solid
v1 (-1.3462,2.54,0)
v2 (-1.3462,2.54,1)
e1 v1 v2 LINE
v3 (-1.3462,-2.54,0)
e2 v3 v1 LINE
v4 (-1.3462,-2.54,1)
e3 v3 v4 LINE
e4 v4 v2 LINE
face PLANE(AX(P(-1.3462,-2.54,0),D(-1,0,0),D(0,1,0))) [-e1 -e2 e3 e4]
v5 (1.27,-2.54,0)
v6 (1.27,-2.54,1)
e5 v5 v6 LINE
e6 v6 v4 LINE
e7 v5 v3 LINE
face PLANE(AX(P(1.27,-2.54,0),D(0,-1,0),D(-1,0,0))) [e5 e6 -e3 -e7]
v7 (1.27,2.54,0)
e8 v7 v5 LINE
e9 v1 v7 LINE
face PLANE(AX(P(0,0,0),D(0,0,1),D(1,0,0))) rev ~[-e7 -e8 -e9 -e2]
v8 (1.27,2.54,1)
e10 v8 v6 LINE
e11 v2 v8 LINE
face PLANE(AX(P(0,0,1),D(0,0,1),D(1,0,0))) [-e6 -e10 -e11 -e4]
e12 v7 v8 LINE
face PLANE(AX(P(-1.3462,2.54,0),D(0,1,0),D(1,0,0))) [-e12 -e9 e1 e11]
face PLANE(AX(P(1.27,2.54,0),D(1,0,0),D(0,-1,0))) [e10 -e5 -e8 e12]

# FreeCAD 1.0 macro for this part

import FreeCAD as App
import Part
import Sketcher

V = App.Vector
Q = App.Units.Quantity


def add_polygon(sketch, points):
    """Adds a closed chain of lines whose ends are joined by coincident constraints."""
    first, n = sketch.GeometryCount, len(points)
    for a, b in zip(points, points[1:] + points[:1]):
        sketch.addGeometry(Part.LineSegment(App.Vector(*a, 0), App.Vector(*b, 0)), False)
    for i in range(n):
        sketch.addConstraint(Sketcher.Constraint("Coincident", first + i, 2, first + (i + 1) % n, 1))

doc = App.newDocument("Part")
body = doc.addObject("PartDesign::Body", "Body")

sketch1 = doc.addObject("Sketcher::SketchObject", "Sketch")
body.addObject(sketch1)
sketch1.AttachmentSupport = (doc.XY_Plane, [""])
sketch1.MapMode = "FlatFace"
add_polygon(sketch1, [(1.27, 2.54), (-1.3462, 2.54), (-1.3462, -2.54), (1.27, -2.54)])
sketch1.addConstraint(Sketcher.Constraint("Horizontal", 0))
sketch1.addConstraint(Sketcher.Constraint("Vertical", 1))
sketch1.addConstraint(Sketcher.Constraint("Horizontal", 2))
sketch1.addConstraint(Sketcher.Constraint("Vertical", 3))
sketch1.addConstraint(Sketcher.Constraint("DistanceY", 1, 2, 1, 1, Q("0.2 in")))
sketch1.addConstraint(Sketcher.Constraint("DistanceY", -1, 1, 0, 2, Q("0.1 in")))
sketch1.addConstraint(Sketcher.Constraint("DistanceX", 0, 2, 0, 1, Q("0.103 in")))
sketch1.addConstraint(Sketcher.Constraint("DistanceX", -1, 1, 2, 2, Q("0.05 in")))
pad1 = doc.addObject("PartDesign::Pad", "Pad")
body.addObject(pad1)
pad1.Profile = sketch1
pad1.Length = 1

doc.recompute()
